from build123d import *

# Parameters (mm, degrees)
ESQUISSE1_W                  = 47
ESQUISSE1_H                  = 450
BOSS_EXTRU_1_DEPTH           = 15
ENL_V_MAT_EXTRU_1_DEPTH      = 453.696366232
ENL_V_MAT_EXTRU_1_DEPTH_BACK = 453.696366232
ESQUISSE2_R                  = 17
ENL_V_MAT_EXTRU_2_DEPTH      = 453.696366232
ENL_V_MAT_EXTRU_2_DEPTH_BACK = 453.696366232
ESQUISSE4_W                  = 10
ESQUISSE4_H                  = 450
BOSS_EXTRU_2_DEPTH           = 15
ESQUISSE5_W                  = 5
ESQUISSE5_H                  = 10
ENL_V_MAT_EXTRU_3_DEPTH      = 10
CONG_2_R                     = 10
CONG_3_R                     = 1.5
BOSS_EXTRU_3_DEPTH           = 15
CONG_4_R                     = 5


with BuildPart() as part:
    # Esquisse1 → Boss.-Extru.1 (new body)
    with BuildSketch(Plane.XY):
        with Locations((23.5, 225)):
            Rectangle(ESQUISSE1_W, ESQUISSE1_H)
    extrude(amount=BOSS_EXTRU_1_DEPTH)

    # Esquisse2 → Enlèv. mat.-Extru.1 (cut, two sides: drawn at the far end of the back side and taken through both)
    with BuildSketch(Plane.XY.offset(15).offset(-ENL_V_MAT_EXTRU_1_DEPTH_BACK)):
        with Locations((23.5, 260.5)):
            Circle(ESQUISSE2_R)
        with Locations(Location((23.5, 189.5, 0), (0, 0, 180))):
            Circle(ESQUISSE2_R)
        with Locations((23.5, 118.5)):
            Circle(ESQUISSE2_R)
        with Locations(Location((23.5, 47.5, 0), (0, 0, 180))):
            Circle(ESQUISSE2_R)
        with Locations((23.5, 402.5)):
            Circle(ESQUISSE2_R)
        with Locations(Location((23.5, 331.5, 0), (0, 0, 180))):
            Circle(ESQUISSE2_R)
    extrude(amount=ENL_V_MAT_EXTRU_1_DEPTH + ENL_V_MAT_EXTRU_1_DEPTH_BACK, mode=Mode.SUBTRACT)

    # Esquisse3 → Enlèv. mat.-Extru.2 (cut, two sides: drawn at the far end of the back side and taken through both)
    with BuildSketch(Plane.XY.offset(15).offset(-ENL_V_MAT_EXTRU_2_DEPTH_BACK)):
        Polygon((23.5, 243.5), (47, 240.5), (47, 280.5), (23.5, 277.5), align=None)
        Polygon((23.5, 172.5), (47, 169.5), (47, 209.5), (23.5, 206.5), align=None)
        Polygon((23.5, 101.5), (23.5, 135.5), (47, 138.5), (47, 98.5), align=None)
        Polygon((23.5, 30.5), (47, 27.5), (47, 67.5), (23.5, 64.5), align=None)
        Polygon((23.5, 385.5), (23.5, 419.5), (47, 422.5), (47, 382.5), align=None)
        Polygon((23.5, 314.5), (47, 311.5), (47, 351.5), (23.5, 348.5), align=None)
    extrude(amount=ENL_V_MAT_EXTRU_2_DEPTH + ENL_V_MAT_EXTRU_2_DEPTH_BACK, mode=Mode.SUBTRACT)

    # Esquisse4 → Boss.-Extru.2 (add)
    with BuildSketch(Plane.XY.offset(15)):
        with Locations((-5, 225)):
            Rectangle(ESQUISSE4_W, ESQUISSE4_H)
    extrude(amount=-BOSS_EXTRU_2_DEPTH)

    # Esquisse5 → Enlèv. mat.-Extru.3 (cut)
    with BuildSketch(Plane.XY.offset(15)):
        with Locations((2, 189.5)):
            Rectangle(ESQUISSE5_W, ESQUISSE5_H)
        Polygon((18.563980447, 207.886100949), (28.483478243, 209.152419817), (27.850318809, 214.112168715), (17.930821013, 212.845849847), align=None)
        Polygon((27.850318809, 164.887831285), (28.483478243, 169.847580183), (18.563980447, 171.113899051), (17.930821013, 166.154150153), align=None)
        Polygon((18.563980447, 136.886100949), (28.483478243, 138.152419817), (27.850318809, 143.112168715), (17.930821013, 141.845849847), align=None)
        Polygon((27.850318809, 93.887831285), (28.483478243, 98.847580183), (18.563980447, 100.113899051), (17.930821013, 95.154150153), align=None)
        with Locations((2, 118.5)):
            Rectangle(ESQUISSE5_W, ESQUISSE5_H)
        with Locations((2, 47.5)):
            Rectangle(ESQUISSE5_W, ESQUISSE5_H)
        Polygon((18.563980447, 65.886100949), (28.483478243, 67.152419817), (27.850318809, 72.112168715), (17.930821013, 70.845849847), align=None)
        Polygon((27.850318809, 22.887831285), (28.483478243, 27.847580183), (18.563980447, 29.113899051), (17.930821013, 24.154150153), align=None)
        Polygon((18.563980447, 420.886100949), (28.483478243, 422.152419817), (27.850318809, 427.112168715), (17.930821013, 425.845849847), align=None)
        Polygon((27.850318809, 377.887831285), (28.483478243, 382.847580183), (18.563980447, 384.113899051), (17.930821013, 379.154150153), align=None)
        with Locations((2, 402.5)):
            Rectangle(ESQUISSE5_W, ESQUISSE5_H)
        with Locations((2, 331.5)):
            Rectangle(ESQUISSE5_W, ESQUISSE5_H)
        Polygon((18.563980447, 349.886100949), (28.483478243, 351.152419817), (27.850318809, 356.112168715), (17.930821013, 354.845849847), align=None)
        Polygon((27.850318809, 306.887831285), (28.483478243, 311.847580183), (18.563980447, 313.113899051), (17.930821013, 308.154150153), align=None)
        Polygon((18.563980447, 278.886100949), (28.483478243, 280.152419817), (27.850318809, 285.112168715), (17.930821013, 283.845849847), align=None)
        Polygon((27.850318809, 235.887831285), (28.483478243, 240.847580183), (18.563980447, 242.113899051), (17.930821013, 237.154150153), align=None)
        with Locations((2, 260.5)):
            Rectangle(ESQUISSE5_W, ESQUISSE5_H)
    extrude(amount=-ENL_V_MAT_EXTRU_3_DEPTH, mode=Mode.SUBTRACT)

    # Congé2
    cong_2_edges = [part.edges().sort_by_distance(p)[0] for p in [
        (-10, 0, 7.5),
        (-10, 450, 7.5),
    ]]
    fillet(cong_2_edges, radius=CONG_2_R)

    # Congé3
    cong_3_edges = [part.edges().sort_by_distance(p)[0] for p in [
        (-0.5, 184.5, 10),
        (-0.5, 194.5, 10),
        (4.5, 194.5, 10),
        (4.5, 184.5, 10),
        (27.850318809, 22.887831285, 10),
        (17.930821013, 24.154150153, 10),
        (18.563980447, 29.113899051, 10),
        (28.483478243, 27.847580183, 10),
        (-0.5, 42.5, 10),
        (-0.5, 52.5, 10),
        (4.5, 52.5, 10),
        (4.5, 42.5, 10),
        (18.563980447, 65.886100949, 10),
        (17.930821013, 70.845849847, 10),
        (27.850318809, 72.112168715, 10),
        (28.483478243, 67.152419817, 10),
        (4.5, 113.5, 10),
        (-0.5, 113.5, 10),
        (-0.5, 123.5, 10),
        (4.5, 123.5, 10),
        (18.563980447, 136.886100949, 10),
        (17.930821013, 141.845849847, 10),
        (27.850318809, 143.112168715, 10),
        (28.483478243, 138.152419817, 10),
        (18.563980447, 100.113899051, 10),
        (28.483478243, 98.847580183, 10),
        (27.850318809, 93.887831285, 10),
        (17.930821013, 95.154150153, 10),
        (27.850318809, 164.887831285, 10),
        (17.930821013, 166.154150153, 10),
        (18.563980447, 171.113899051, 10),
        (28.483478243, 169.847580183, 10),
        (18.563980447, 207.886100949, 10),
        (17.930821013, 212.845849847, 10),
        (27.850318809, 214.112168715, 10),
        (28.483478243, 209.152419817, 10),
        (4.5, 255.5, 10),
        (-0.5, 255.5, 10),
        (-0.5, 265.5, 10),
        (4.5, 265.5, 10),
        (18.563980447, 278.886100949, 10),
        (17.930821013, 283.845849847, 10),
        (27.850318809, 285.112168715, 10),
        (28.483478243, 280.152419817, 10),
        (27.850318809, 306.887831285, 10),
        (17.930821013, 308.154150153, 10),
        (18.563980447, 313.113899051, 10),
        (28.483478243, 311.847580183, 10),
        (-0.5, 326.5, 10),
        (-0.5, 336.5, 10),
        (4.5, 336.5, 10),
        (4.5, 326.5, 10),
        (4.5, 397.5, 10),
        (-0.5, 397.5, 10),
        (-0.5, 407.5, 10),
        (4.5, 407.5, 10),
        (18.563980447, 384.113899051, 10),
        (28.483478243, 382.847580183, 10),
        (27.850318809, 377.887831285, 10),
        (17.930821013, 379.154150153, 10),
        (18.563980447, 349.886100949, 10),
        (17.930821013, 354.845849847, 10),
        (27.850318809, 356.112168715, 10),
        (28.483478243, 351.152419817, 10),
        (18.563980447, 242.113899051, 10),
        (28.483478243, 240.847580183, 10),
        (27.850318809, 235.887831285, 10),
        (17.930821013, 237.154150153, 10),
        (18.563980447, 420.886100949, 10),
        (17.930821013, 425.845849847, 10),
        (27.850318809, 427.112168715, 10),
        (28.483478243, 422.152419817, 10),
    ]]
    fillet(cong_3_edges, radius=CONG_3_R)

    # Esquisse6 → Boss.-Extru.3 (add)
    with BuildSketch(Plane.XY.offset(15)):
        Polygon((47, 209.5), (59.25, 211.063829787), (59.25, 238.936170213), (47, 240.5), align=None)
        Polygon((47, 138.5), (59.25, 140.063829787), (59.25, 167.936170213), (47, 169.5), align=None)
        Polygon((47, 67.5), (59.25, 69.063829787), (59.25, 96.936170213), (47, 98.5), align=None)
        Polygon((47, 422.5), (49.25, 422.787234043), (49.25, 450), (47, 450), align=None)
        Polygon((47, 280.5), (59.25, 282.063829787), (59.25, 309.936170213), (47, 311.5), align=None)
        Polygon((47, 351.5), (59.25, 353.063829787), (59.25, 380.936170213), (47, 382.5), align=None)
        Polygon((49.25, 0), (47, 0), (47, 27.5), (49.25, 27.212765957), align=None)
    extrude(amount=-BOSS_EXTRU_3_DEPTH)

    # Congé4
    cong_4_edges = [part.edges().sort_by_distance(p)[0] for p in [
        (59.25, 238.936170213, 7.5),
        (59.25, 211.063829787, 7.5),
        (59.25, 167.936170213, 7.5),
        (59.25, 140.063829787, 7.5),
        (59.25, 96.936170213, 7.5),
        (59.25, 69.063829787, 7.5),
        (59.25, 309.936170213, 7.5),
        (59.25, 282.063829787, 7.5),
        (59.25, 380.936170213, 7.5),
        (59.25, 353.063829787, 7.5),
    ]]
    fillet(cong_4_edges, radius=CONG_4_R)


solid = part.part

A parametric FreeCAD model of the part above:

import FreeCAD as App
import Part
import Sketcher

V = App.Vector
Q = App.Units.Quantity


def edges_at(feature, points):
    """Names of the edges that pass closest to the given points."""
    edges = feature.Shape.Edges
    near = lambda p: min(range(len(edges)), key=lambda i: edges[i].distToShape(Part.Vertex(*p))[0])
    return sorted({f"Edge{near(p) + 1}" for p in points})

doc = App.newDocument("Part")
body = doc.addObject("PartDesign::Body", "Body")

# Sketch on XY plane
sketch1 = body.newObject("Sketcher::SketchObject", "Sketch")
sketch1.AttachmentSupport = (doc.getObject("XY_Plane"), [""])
sketch1.MapMode = "FlatFace"
sketch1.addGeometry(Part.LineSegment(V(0, 450, 0), V(0, 0, 0)), False)
sketch1.addGeometry(Part.LineSegment(V(0, 0, 0), V(47, 0, 0)), False)
sketch1.addGeometry(Part.LineSegment(V(47, 0, 0), V(47, 450, 0)), False)
sketch1.addGeometry(Part.LineSegment(V(47, 450, 0), V(0, 450, 0)), False)
sketch1.addConstraint(Sketcher.Constraint("Coincident", 0, 2, 1, 1))
sketch1.addConstraint(Sketcher.Constraint("Coincident", 1, 2, 2, 1))
sketch1.addConstraint(Sketcher.Constraint("Coincident", 2, 2, 3, 1))
sketch1.addConstraint(Sketcher.Constraint("Coincident", 3, 2, 0, 1))
sketch1.addConstraint(Sketcher.Constraint("Vertical", 0))
sketch1.addConstraint(Sketcher.Constraint("Horizontal", 1))
sketch1.addConstraint(Sketcher.Constraint("Vertical", 2))
sketch1.addConstraint(Sketcher.Constraint("Horizontal", 3))
sketch1.addConstraint(Sketcher.Constraint("Coincident", 0, 2, -1, 1))
sketch1.addConstraint(Sketcher.Constraint("DistanceX", 1, 1, 1, 2, Q("47 mm")))
sketch1.addConstraint(Sketcher.Constraint("DistanceY", 0, 2, 0, 1, Q("450 mm")))
pad1 = body.newObject("PartDesign::Pad", "Pad")
pad1.Profile = sketch1
pad1.Length = 15

# Sketch on XY plane
sketch2 = body.newObject("Sketcher::SketchObject", "Sketch001")
sketch2.AttachmentSupport = (doc.getObject("XY_Plane"), [""])
sketch2.MapMode = "FlatFace"
sketch2.AttachmentOffset = App.Placement(V(0, 0, 15), App.Rotation())
sketch2.addGeometry(Part.Circle(V(24, 260, 0), V(0, 0, 1), 17), False)
sketch2.addGeometry(Part.Circle(V(24, 190, 0), V(0, 0, 1), 17), False)
sketch2.addGeometry(Part.Circle(V(24, 118, 0), V(0, 0, 1), 17), False)
sketch2.addGeometry(Part.Circle(V(24, 48, 0), V(0, 0, 1), 17), False)
sketch2.addGeometry(Part.Circle(V(24, 402, 0), V(0, 0, 1), 17), False)
sketch2.addGeometry(Part.Circle(V(24, 332, 0), V(0, 0, 1), 17), False)
sketch2.addConstraint(Sketcher.Constraint("Equal", 0, 1))
sketch2.addConstraint(Sketcher.Constraint("Equal", 1, 2))
sketch2.addConstraint(Sketcher.Constraint("Equal", 2, 3))
sketch2.addConstraint(Sketcher.Constraint("Equal", 3, 4))
sketch2.addConstraint(Sketcher.Constraint("Equal", 4, 5))
sketch2.addConstraint(Sketcher.Constraint("Vertical", 0, 3, 1, 3))
sketch2.addConstraint(Sketcher.Constraint("Vertical", 1, 3, 2, 3))
sketch2.addConstraint(Sketcher.Constraint("Vertical", 2, 3, 3, 3))
sketch2.addConstraint(Sketcher.Constraint("Vertical", 3, 3, 4, 3))
sketch2.addConstraint(Sketcher.Constraint("Vertical", 4, 3, 5, 3))
sketch2.addConstraint(Sketcher.Constraint("Diameter", 0, Q("34 mm")))
sketch2.addConstraint(Sketcher.Constraint("DistanceY", 1, 3, 0, 3, Q("71 mm")))
sketch2.addConstraint(Sketcher.Constraint("DistanceY", 2, 3, 1, 3, Q("71 mm")))
sketch2.addConstraint(Sketcher.Constraint("DistanceY", 3, 3, 2, 3, Q("71 mm")))
sketch2.addConstraint(Sketcher.Constraint("DistanceY", 0, 3, 4, 3, Q("142 mm")))
sketch2.addConstraint(Sketcher.Constraint("DistanceY", 0, 3, 5, 3, Q("71 mm")))
sketch2.addConstraint(Sketcher.Constraint("DistanceX", -1, 1, 0, 3, Q("23.5 mm")))
sketch2.addConstraint(Sketcher.Constraint("DistanceY", -1, 1, 0, 3, Q("260.5 mm")))
pocket1 = body.newObject("PartDesign::Pocket", "Pocket")
pocket1.Profile = sketch2
pocket1.Type = "ThroughAll"
pocket1.Midplane = True

# Sketch on XY plane
sketch3 = body.newObject("Sketcher::SketchObject", "Sketch002")
sketch3.AttachmentSupport = (doc.getObject("XY_Plane"), [""])
sketch3.MapMode = "FlatFace"
sketch3.AttachmentOffset = App.Placement(V(0, 0, 15), App.Rotation())
sketch3.addGeometry(Part.LineSegment(V(24, 244, 0), V(47, 240, 0)), False)
sketch3.addGeometry(Part.LineSegment(V(47, 240, 0), V(47, 280, 0)), False)
sketch3.addGeometry(Part.LineSegment(V(47, 280, 0), V(24, 278, 0)), False)
sketch3.addGeometry(Part.LineSegment(V(24, 278, 0), V(24, 244, 0)), False)
sketch3.addGeometry(Part.LineSegment(V(24, 172, 0), V(47, 170, 0)), False)
sketch3.addGeometry(Part.LineSegment(V(47, 170, 0), V(47, 210, 0)), False)
sketch3.addGeometry(Part.LineSegment(V(47, 210, 0), V(24, 206, 0)), False)
sketch3.addGeometry(Part.LineSegment(V(24, 206, 0), V(24, 172, 0)), False)
sketch3.addGeometry(Part.LineSegment(V(24, 136, 0), V(24, 102, 0)), False)
sketch3.addGeometry(Part.LineSegment(V(24, 102, 0), V(47, 98, 0)), False)
sketch3.addGeometry(Part.LineSegment(V(47, 98, 0), V(47, 138, 0)), False)
sketch3.addGeometry(Part.LineSegment(V(47, 138, 0), V(24, 136, 0)), False)
sketch3.addGeometry(Part.LineSegment(V(24, 30, 0), V(47, 28, 0)), False)
sketch3.addGeometry(Part.LineSegment(V(47, 28, 0), V(47, 68, 0)), False)
sketch3.addGeometry(Part.LineSegment(V(47, 68, 0), V(24, 64, 0)), False)
sketch3.addGeometry(Part.LineSegment(V(24, 64, 0), V(24, 30, 0)), False)
sketch3.addGeometry(Part.LineSegment(V(24, 420, 0), V(24, 386, 0)), False)
sketch3.addGeometry(Part.LineSegment(V(24, 386, 0), V(47, 382, 0)), False)
sketch3.addGeometry(Part.LineSegment(V(47, 382, 0), V(47, 422, 0)), False)
sketch3.addGeometry(Part.LineSegment(V(47, 422, 0), V(24, 420, 0)), False)
sketch3.addGeometry(Part.LineSegment(V(24, 314, 0), V(47, 312, 0)), False)
sketch3.addGeometry(Part.LineSegment(V(47, 312, 0), V(47, 352, 0)), False)
sketch3.addGeometry(Part.LineSegment(V(47, 352, 0), V(24, 348, 0)), False)
sketch3.addGeometry(Part.LineSegment(V(24, 348, 0), V(24, 314, 0)), False)
sketch3.addConstraint(Sketcher.Constraint("Coincident", 0, 2, 1, 1))
sketch3.addConstraint(Sketcher.Constraint("Coincident", 1, 2, 2, 1))
sketch3.addConstraint(Sketcher.Constraint("Coincident", 2, 2, 3, 1))
sketch3.addConstraint(Sketcher.Constraint("Coincident", 3, 2, 0, 1))
sketch3.addConstraint(Sketcher.Constraint("Coincident", 4, 2, 5, 1))
sketch3.addConstraint(Sketcher.Constraint("Coincident", 5, 2, 6, 1))
sketch3.addConstraint(Sketcher.Constraint("Coincident", 6, 2, 7, 1))
sketch3.addConstraint(Sketcher.Constraint("Coincident", 7, 2, 4, 1))
sketch3.addConstraint(Sketcher.Constraint("Coincident", 8, 2, 9, 1))
sketch3.addConstraint(Sketcher.Constraint("Coincident", 9, 2, 10, 1))
sketch3.addConstraint(Sketcher.Constraint("Coincident", 10, 2, 11, 1))
sketch3.addConstraint(Sketcher.Constraint("Coincident", 11, 2, 8, 1))
sketch3.addConstraint(Sketcher.Constraint("Coincident", 12, 2, 13, 1))
sketch3.addConstraint(Sketcher.Constraint("Coincident", 13, 2, 14, 1))
sketch3.addConstraint(Sketcher.Constraint("Coincident", 14, 2, 15, 1))
sketch3.addConstraint(Sketcher.Constraint("Coincident", 15, 2, 12, 1))
sketch3.addConstraint(Sketcher.Constraint("Coincident", 16, 2, 17, 1))
sketch3.addConstraint(Sketcher.Constraint("Coincident", 17, 2, 18, 1))
sketch3.addConstraint(Sketcher.Constraint("Coincident", 18, 2, 19, 1))
sketch3.addConstraint(Sketcher.Constraint("Coincident", 19, 2, 16, 1))
sketch3.addConstraint(Sketcher.Constraint("Coincident", 20, 2, 21, 1))
sketch3.addConstraint(Sketcher.Constraint("Coincident", 21, 2, 22, 1))
sketch3.addConstraint(Sketcher.Constraint("Coincident", 22, 2, 23, 1))
sketch3.addConstraint(Sketcher.Constraint("Coincident", 23, 2, 20, 1))
sketch3.addConstraint(Sketcher.Constraint("Vertical", 1))
sketch3.addConstraint(Sketcher.Constraint("Vertical", 3))
sketch3.addConstraint(Sketcher.Constraint("Vertical", 5))
sketch3.addConstraint(Sketcher.Constraint("Vertical", 7))
sketch3.addConstraint(Sketcher.Constraint("Vertical", 8))
sketch3.addConstraint(Sketcher.Constraint("Vertical", 10))
sketch3.addConstraint(Sketcher.Constraint("Vertical", 13))
sketch3.addConstraint(Sketcher.Constraint("Vertical", 15))
sketch3.addConstraint(Sketcher.Constraint("Vertical", 16))
sketch3.addConstraint(Sketcher.Constraint("Vertical", 18))
sketch3.addConstraint(Sketcher.Constraint("Vertical", 21))
sketch3.addConstraint(Sketcher.Constraint("Vertical", 23))
sketch3.addConstraint(Sketcher.Constraint("Parallel", 0, 4))
sketch3.addConstraint(Sketcher.Constraint("Parallel", 2, 6))
sketch3.addConstraint(Sketcher.Constraint("Parallel", 4, 9))
sketch3.addConstraint(Sketcher.Constraint("Parallel", 6, 11))
sketch3.addConstraint(Sketcher.Constraint("Parallel", 9, 12))
sketch3.addConstraint(Sketcher.Constraint("Parallel", 11, 14))
sketch3.addConstraint(Sketcher.Constraint("Parallel", 12, 17))
sketch3.addConstraint(Sketcher.Constraint("Parallel", 14, 19))
sketch3.addConstraint(Sketcher.Constraint("Parallel", 17, 20))
sketch3.addConstraint(Sketcher.Constraint("Parallel", 19, 22))
sketch3.addConstraint(Sketcher.Constraint("Vertical", 1, 2, 4, 2))
sketch3.addConstraint(Sketcher.Constraint("Vertical", 3, 2, 6, 2))
sketch3.addConstraint(Sketcher.Constraint("Vertical", 7, 2, 8, 2))
sketch3.addConstraint(Sketcher.Constraint("Vertical", 5, 2, 9, 2))
sketch3.addConstraint(Sketcher.Constraint("Vertical", 10, 2, 12, 2))
sketch3.addConstraint(Sketcher.Constraint("Vertical", 11, 2, 14, 2))
sketch3.addConstraint(Sketcher.Constraint("Vertical", 15, 2, 16, 2))
sketch3.addConstraint(Sketcher.Constraint("Vertical", 13, 2, 17, 2))
sketch3.addConstraint(Sketcher.Constraint("Vertical", 18, 2, 20, 2))
sketch3.addConstraint(Sketcher.Constraint("Vertical", 19, 2, 22, 2))
sketch3.addConstraint(Sketcher.Constraint("Equal", 1, 5))
sketch3.addConstraint(Sketcher.Constraint("Equal", 7, 8))
sketch3.addConstraint(Sketcher.Constraint("Equal", 10, 13))
sketch3.addConstraint(Sketcher.Constraint("Equal", 15, 16))
sketch3.addConstraint(Sketcher.Constraint("Equal", 18, 21))
sketch3.addConstraint(Sketcher.Constraint("Equal", 0, 2))
sketch3.addConstraint(Sketcher.Constraint("DistanceY", 1, 1, 1, 2, Q("40 mm")))
sketch3.addConstraint(Sketcher.Constraint("DistanceY", 3, 2, 3, 1, Q("34 mm")))
sketch3.addConstraint(Sketcher.Constraint("DistanceX", -1, 1, 0, 2, Q("47 mm")))
sketch3.addConstraint(Sketcher.Constraint("DistanceY", 4, 2, 0, 2, Q("71 mm")))
sketch3.addConstraint(Sketcher.Constraint("DistanceY", 8, 2, 7, 2, Q("71 mm")))
sketch3.addConstraint(Sketcher.Constraint("DistanceY", 12, 2, 9, 2, Q("71 mm")))
sketch3.addConstraint(Sketcher.Constraint("DistanceY", 1, 2, 16, 2, Q("105 mm")))
sketch3.addConstraint(Sketcher.Constraint("DistanceY", 1, 2, 20, 2, Q("31 mm")))
sketch3.addConstraint(Sketcher.Constraint("DistanceY", -1, 1, 0, 2, Q("240.5 mm")))
sketch3.addConstraint(Sketcher.Constraint("DistanceX", -1, 1, 2, 2, Q("23.5 mm")))
pocket2 = body.newObject("PartDesign::Pocket", "Pocket001")
pocket2.Profile = sketch3
pocket2.Type = "ThroughAll"
pocket2.Midplane = True

# Sketch on XY plane
sketch4 = body.newObject("Sketcher::SketchObject", "Sketch003")
sketch4.AttachmentSupport = (doc.getObject("XY_Plane"), [""])
sketch4.MapMode = "FlatFace"
sketch4.AttachmentOffset = App.Placement(V(0, 0, 15), App.Rotation())
sketch4.addGeometry(Part.LineSegment(V(-10, 450, 0), V(-10, 0, 0)), False)
sketch4.addGeometry(Part.LineSegment(V(-10, 0, 0), V(0, 0, 0)), False)
sketch4.addGeometry(Part.LineSegment(V(0, 0, 0), V(0, 450, 0)), False)
sketch4.addGeometry(Part.LineSegment(V(0, 450, 0), V(-10, 450, 0)), False)
sketch4.addConstraint(Sketcher.Constraint("Coincident", 0, 2, 1, 1))
sketch4.addConstraint(Sketcher.Constraint("Coincident", 1, 2, 2, 1))
sketch4.addConstraint(Sketcher.Constraint("Coincident", 2, 2, 3, 1))
sketch4.addConstraint(Sketcher.Constraint("Coincident", 3, 2, 0, 1))
sketch4.addConstraint(Sketcher.Constraint("Vertical", 0))
sketch4.addConstraint(Sketcher.Constraint("Horizontal", 1))
sketch4.addConstraint(Sketcher.Constraint("Vertical", 2))
sketch4.addConstraint(Sketcher.Constraint("Horizontal", 3))
sketch4.addConstraint(Sketcher.Constraint("Coincident", 1, 2, -1, 1))
sketch4.addConstraint(Sketcher.Constraint("DistanceX", 1, 1, 1, 2, Q("10 mm")))
sketch4.addConstraint(Sketcher.Constraint("DistanceY", 0, 2, 0, 1, Q("450 mm")))
pad2 = body.newObject("PartDesign::Pad", "Pad001")
pad2.Profile = sketch4
pad2.Length = 15
pad2.Reversed = True

# Sketch on XY plane
sketch5 = body.newObject("Sketcher::SketchObject", "Sketch004")
sketch5.AttachmentSupport = (doc.getObject("XY_Plane"), [""])
sketch5.MapMode = "FlatFace"
sketch5.AttachmentOffset = App.Placement(V(0, 0, 15), App.Rotation())
sketch5.addGeometry(Part.LineSegment(V(0, 194, 0), V(0, 184, 0)), False)
sketch5.addGeometry(Part.LineSegment(V(0, 184, 0), V(4, 184, 0)), False)
sketch5.addGeometry(Part.LineSegment(V(4, 184, 0), V(4, 194, 0)), False)
sketch5.addGeometry(Part.LineSegment(V(4, 194, 0), V(0, 194, 0)), False)
sketch5.addGeometry(Part.LineSegment(V(19, 208, 0), V(28, 209, 0)), False)
sketch5.addGeometry(Part.LineSegment(V(28, 209, 0), V(28, 214, 0)), False)
sketch5.addGeometry(Part.LineSegment(V(28, 214, 0), V(18, 213, 0)), False)
sketch5.addGeometry(Part.LineSegment(V(18, 213, 0), V(19, 208, 0)), False)
sketch5.addGeometry(Part.LineSegment(V(28, 165, 0), V(28, 170, 0)), False)
sketch5.addGeometry(Part.LineSegment(V(28, 170, 0), V(19, 171, 0)), False)
sketch5.addGeometry(Part.LineSegment(V(19, 171, 0), V(18, 166, 0)), False)
sketch5.addGeometry(Part.LineSegment(V(18, 166, 0), V(28, 165, 0)), False)
sketch5.addGeometry(Part.LineSegment(V(19, 137, 0), V(28, 138, 0)), False)
sketch5.addGeometry(Part.LineSegment(V(28, 138, 0), V(28, 143, 0)), False)
sketch5.addGeometry(Part.LineSegment(V(28, 143, 0), V(18, 142, 0)), False)
sketch5.addGeometry(Part.LineSegment(V(18, 142, 0), V(19, 137, 0)), False)
sketch5.addGeometry(Part.LineSegment(V(28, 94, 0), V(28, 99, 0)), False)
sketch5.addGeometry(Part.LineSegment(V(28, 99, 0), V(19, 100, 0)), False)
sketch5.addGeometry(Part.LineSegment(V(19, 100, 0), V(18, 95, 0)), False)
sketch5.addGeometry(Part.LineSegment(V(18, 95, 0), V(28, 94, 0)), False)
sketch5.addGeometry(Part.LineSegment(V(0, 124, 0), V(0, 114, 0)), False)
sketch5.addGeometry(Part.LineSegment(V(0, 114, 0), V(4, 114, 0)), False)
sketch5.addGeometry(Part.LineSegment(V(4, 114, 0), V(4, 124, 0)), False)
sketch5.addGeometry(Part.LineSegment(V(4, 124, 0), V(0, 124, 0)), False)
sketch5.addGeometry(Part.LineSegment(V(0, 52, 0), V(0, 42, 0)), False)
sketch5.addGeometry(Part.LineSegment(V(0, 42, 0), V(4, 42, 0)), False)
sketch5.addGeometry(Part.LineSegment(V(4, 42, 0), V(4, 52, 0)), False)
sketch5.addGeometry(Part.LineSegment(V(4, 52, 0), V(0, 52, 0)), False)
sketch5.addGeometry(Part.LineSegment(V(19, 66, 0), V(28, 67, 0)), False)
sketch5.addGeometry(Part.LineSegment(V(28, 67, 0), V(28, 72, 0)), False)
sketch5.addGeometry(Part.LineSegment(V(28, 72, 0), V(18, 71, 0)), False)
sketch5.addGeometry(Part.LineSegment(V(18, 71, 0), V(19, 66, 0)), False)
sketch5.addGeometry(Part.LineSegment(V(28, 23, 0), V(28, 28, 0)), False)
sketch5.addGeometry(Part.LineSegment(V(28, 28, 0), V(19, 29, 0)), False)
sketch5.addGeometry(Part.LineSegment(V(19, 29, 0), V(18, 24, 0)), False)
sketch5.addGeometry(Part.LineSegment(V(18, 24, 0), V(28, 23, 0)), False)
sketch5.addGeometry(Part.LineSegment(V(19, 421, 0), V(28, 422, 0)), False)
sketch5.addGeometry(Part.LineSegment(V(28, 422, 0), V(28, 427, 0)), False)
sketch5.addGeometry(Part.LineSegment(V(28, 427, 0), V(18, 426, 0)), False)
sketch5.addGeometry(Part.LineSegment(V(18, 426, 0), V(19, 421, 0)), False)
sketch5.addGeometry(Part.LineSegment(V(28, 378, 0), V(28, 383, 0)), False)
sketch5.addGeometry(Part.LineSegment(V(28, 383, 0), V(19, 384, 0)), False)
sketch5.addGeometry(Part.LineSegment(V(19, 384, 0), V(18, 379, 0)), False)
sketch5.addGeometry(Part.LineSegment(V(18, 379, 0), V(28, 378, 0)), False)
sketch5.addGeometry(Part.LineSegment(V(0, 408, 0), V(0, 398, 0)), False)
sketch5.addGeometry(Part.LineSegment(V(0, 398, 0), V(4, 398, 0)), False)
sketch5.addGeometry(Part.LineSegment(V(4, 398, 0), V(4, 408, 0)), False)
sketch5.addGeometry(Part.LineSegment(V(4, 408, 0), V(0, 408, 0)), False)
sketch5.addGeometry(Part.LineSegment(V(0, 336, 0), V(0, 326, 0)), False)
sketch5.addGeometry(Part.LineSegment(V(0, 326, 0), V(4, 326, 0)), False)
sketch5.addGeometry(Part.LineSegment(V(4, 326, 0), V(4, 336, 0)), False)
sketch5.addGeometry(Part.LineSegment(V(4, 336, 0), V(0, 336, 0)), False)
sketch5.addGeometry(Part.LineSegment(V(19, 350, 0), V(28, 351, 0)), False)
sketch5.addGeometry(Part.LineSegment(V(28, 351, 0), V(28, 356, 0)), False)
sketch5.addGeometry(Part.LineSegment(V(28, 356, 0), V(18, 355, 0)), False)
sketch5.addGeometry(Part.LineSegment(V(18, 355, 0), V(19, 350, 0)), False)
sketch5.addGeometry(Part.LineSegment(V(28, 307, 0), V(28, 312, 0)), False)
sketch5.addGeometry(Part.LineSegment(V(28, 312, 0), V(19, 313, 0)), False)
sketch5.addGeometry(Part.LineSegment(V(19, 313, 0), V(18, 308, 0)), False)
sketch5.addGeometry(Part.LineSegment(V(18, 308, 0), V(28, 307, 0)), False)
sketch5.addGeometry(Part.LineSegment(V(19, 279, 0), V(28, 280, 0)), False)
sketch5.addGeometry(Part.LineSegment(V(28, 280, 0), V(28, 285, 0)), False)
sketch5.addGeometry(Part.LineSegment(V(28, 285, 0), V(18, 284, 0)), False)
sketch5.addGeometry(Part.LineSegment(V(18, 284, 0), V(19, 279, 0)), False)
sketch5.addGeometry(Part.LineSegment(V(28, 236, 0), V(28, 241, 0)), False)
sketch5.addGeometry(Part.LineSegment(V(28, 241, 0), V(19, 242, 0)), False)
sketch5.addGeometry(Part.LineSegment(V(19, 242, 0), V(18, 237, 0)), False)
sketch5.addGeometry(Part.LineSegment(V(18, 237, 0), V(28, 236, 0)), False)
sketch5.addGeometry(Part.LineSegment(V(0, 266, 0), V(0, 256, 0)), False)
sketch5.addGeometry(Part.LineSegment(V(0, 256, 0), V(4, 256, 0)), False)
sketch5.addGeometry(Part.LineSegment(V(4, 256, 0), V(4, 266, 0)), False)
sketch5.addGeometry(Part.LineSegment(V(4, 266, 0), V(0, 266, 0)), False)
sketch5.addConstraint(Sketcher.Constraint("Coincident", 0, 2, 1, 1))
sketch5.addConstraint(Sketcher.Constraint("Coincident", 1, 2, 2, 1))
sketch5.addConstraint(Sketcher.Constraint("Coincident", 2, 2, 3, 1))
sketch5.addConstraint(Sketcher.Constraint("Coincident", 3, 2, 0, 1))
sketch5.addConstraint(Sketcher.Constraint("Coincident", 4, 2, 5, 1))
sketch5.addConstraint(Sketcher.Constraint("Coincident", 5, 2, 6, 1))
sketch5.addConstraint(Sketcher.Constraint("Coincident", 6, 2, 7, 1))
sketch5.addConstraint(Sketcher.Constraint("Coincident", 7, 2, 4, 1))
sketch5.addConstraint(Sketcher.Constraint("Coincident", 8, 2, 9, 1))
sketch5.addConstraint(Sketcher.Constraint("Coincident", 9, 2, 10, 1))
sketch5.addConstraint(Sketcher.Constraint("Coincident", 10, 2, 11, 1))
sketch5.addConstraint(Sketcher.Constraint("Coincident", 11, 2, 8, 1))
sketch5.addConstraint(Sketcher.Constraint("Coincident", 12, 2, 13, 1))
sketch5.addConstraint(Sketcher.Constraint("Coincident", 13, 2, 14, 1))
sketch5.addConstraint(Sketcher.Constraint("Coincident", 14, 2, 15, 1))
sketch5.addConstraint(Sketcher.Constraint("Coincident", 15, 2, 12, 1))
sketch5.addConstraint(Sketcher.Constraint("Coincident", 16, 2, 17, 1))
sketch5.addConstraint(Sketcher.Constraint("Coincident", 17, 2, 18, 1))
sketch5.addConstraint(Sketcher.Constraint("Coincident", 18, 2, 19, 1))
sketch5.addConstraint(Sketcher.Constraint("Coincident", 19, 2, 16, 1))
sketch5.addConstraint(Sketcher.Constraint("Coincident", 20, 2, 21, 1))
sketch5.addConstraint(Sketcher.Constraint("Coincident", 21, 2, 22, 1))
sketch5.addConstraint(Sketcher.Constraint("Coincident", 22, 2, 23, 1))
sketch5.addConstraint(Sketcher.Constraint("Coincident", 23, 2, 20, 1))
sketch5.addConstraint(Sketcher.Constraint("Coincident", 24, 2, 25, 1))
sketch5.addConstraint(Sketcher.Constraint("Coincident", 25, 2, 26, 1))
sketch5.addConstraint(Sketcher.Constraint("Coincident", 26, 2, 27, 1))
sketch5.addConstraint(Sketcher.Constraint("Coincident", 27, 2, 24, 1))
sketch5.addConstraint(Sketcher.Constraint("Coincident", 28, 2, 29, 1))
sketch5.addConstraint(Sketcher.Constraint("Coincident", 29, 2, 30, 1))
sketch5.addConstraint(Sketcher.Constraint("Coincident", 30, 2, 31, 1))
sketch5.addConstraint(Sketcher.Constraint("Coincident", 31, 2, 28, 1))
sketch5.addConstraint(Sketcher.Constraint("Coincident", 32, 2, 33, 1))
sketch5.addConstraint(Sketcher.Constraint("Coincident", 33, 2, 34, 1))
sketch5.addConstraint(Sketcher.Constraint("Coincident", 34, 2, 35, 1))
sketch5.addConstraint(Sketcher.Constraint("Coincident", 35, 2, 32, 1))
sketch5.addConstraint(Sketcher.Constraint("Coincident", 36, 2, 37, 1))
sketch5.addConstraint(Sketcher.Constraint("Coincident", 37, 2, 38, 1))
sketch5.addConstraint(Sketcher.Constraint("Coincident", 38, 2, 39, 1))
sketch5.addConstraint(Sketcher.Constraint("Coincident", 39, 2, 36, 1))
sketch5.addConstraint(Sketcher.Constraint("Coincident", 40, 2, 41, 1))
sketch5.addConstraint(Sketcher.Constraint("Coincident", 41, 2, 42, 1))
sketch5.addConstraint(Sketcher.Constraint("Coincident", 42, 2, 43, 1))
sketch5.addConstraint(Sketcher.Constraint("Coincident", 43, 2, 40, 1))
sketch5.addConstraint(Sketcher.Constraint("Coincident", 44, 2, 45, 1))
sketch5.addConstraint(Sketcher.Constraint("Coincident", 45, 2, 46, 1))
sketch5.addConstraint(Sketcher.Constraint("Coincident", 46, 2, 47, 1))
sketch5.addConstraint(Sketcher.Constraint("Coincident", 47, 2, 44, 1))
sketch5.addConstraint(Sketcher.Constraint("Coincident", 48, 2, 49, 1))
sketch5.addConstraint(Sketcher.Constraint("Coincident", 49, 2, 50, 1))
sketch5.addConstraint(Sketcher.Constraint("Coincident", 50, 2, 51, 1))
sketch5.addConstraint(Sketcher.Constraint("Coincident", 51, 2, 48, 1))
sketch5.addConstraint(Sketcher.Constraint("Coincident", 52, 2, 53, 1))
sketch5.addConstraint(Sketcher.Constraint("Coincident", 53, 2, 54, 1))
sketch5.addConstraint(Sketcher.Constraint("Coincident", 54, 2, 55, 1))
sketch5.addConstraint(Sketcher.Constraint("Coincident", 55, 2, 52, 1))
sketch5.addConstraint(Sketcher.Constraint("Coincident", 56, 2, 57, 1))
sketch5.addConstraint(Sketcher.Constraint("Coincident", 57, 2, 58, 1))
sketch5.addConstraint(Sketcher.Constraint("Coincident", 58, 2, 59, 1))
sketch5.addConstraint(Sketcher.Constraint("Coincident", 59, 2, 56, 1))
sketch5.addConstraint(Sketcher.Constraint("Coincident", 60, 2, 61, 1))
sketch5.addConstraint(Sketcher.Constraint("Coincident", 61, 2, 62, 1))
sketch5.addConstraint(Sketcher.Constraint("Coincident", 62, 2, 63, 1))
sketch5.addConstraint(Sketcher.Constraint("Coincident", 63, 2, 60, 1))
sketch5.addConstraint(Sketcher.Constraint("Coincident", 64, 2, 65, 1))
sketch5.addConstraint(Sketcher.Constraint("Coincident", 65, 2, 66, 1))
sketch5.addConstraint(Sketcher.Constraint("Coincident", 66, 2, 67, 1))
sketch5.addConstraint(Sketcher.Constraint("Coincident", 67, 2, 64, 1))
sketch5.addConstraint(Sketcher.Constraint("Coincident", 68, 2, 69, 1))
sketch5.addConstraint(Sketcher.Constraint("Coincident", 69, 2, 70, 1))
sketch5.addConstraint(Sketcher.Constraint("Coincident", 70, 2, 71, 1))
sketch5.addConstraint(Sketcher.Constraint("Coincident", 71, 2, 68, 1))
sketch5.addConstraint(Sketcher.Constraint("Vertical", 0))
sketch5.addConstraint(Sketcher.Constraint("Horizontal", 1))
sketch5.addConstraint(Sketcher.Constraint("Vertical", 2))
sketch5.addConstraint(Sketcher.Constraint("Horizontal", 3))
sketch5.addConstraint(Sketcher.Constraint("Vertical", 20))
sketch5.addConstraint(Sketcher.Constraint("Horizontal", 21))
sketch5.addConstraint(Sketcher.Constraint("Vertical", 22))
sketch5.addConstraint(Sketcher.Constraint("Horizontal", 23))
sketch5.addConstraint(Sketcher.Constraint("Vertical", 24))
sketch5.addConstraint(Sketcher.Constraint("Horizontal", 25))
sketch5.addConstraint(Sketcher.Constraint("Vertical", 26))
sketch5.addConstraint(Sketcher.Constraint("Horizontal", 27))
sketch5.addConstraint(Sketcher.Constraint("Vertical", 44))
sketch5.addConstraint(Sketcher.Constraint("Horizontal", 45))
sketch5.addConstraint(Sketcher.Constraint("Vertical", 46))
sketch5.addConstraint(Sketcher.Constraint("Horizontal", 47))
sketch5.addConstraint(Sketcher.Constraint("Vertical", 48))
sketch5.addConstraint(Sketcher.Constraint("Horizontal", 49))
sketch5.addConstraint(Sketcher.Constraint("Vertical", 50))
sketch5.addConstraint(Sketcher.Constraint("Horizontal", 51))
sketch5.addConstraint(Sketcher.Constraint("Vertical", 68))
sketch5.addConstraint(Sketcher.Constraint("Horizontal", 69))
sketch5.addConstraint(Sketcher.Constraint("Vertical", 70))
sketch5.addConstraint(Sketcher.Constraint("Horizontal", 71))
sketch5.addConstraint(Sketcher.Constraint("Perpendicular", 4, 5))
sketch5.addConstraint(Sketcher.Constraint("Perpendicular", 5, 6))
sketch5.addConstraint(Sketcher.Constraint("Perpendicular", 6, 7))
sketch5.addConstraint(Sketcher.Constraint("Perpendicular", 8, 9))
sketch5.addConstraint(Sketcher.Constraint("Perpendicular", 9, 10))
sketch5.addConstraint(Sketcher.Constraint("Perpendicular", 10, 11))
sketch5.addConstraint(Sketcher.Constraint("Perpendicular", 7, 12))
sketch5.addConstraint(Sketcher.Constraint("Perpendicular", 12, 13))
sketch5.addConstraint(Sketcher.Constraint("Perpendicular", 13, 14))
sketch5.addConstraint(Sketcher.Constraint("Perpendicular", 14, 15))
sketch5.addConstraint(Sketcher.Constraint("Perpendicular", 11, 16))
sketch5.addConstraint(Sketcher.Constraint("Perpendicular", 16, 17))
sketch5.addConstraint(Sketcher.Constraint("Perpendicular", 17, 18))
sketch5.addConstraint(Sketcher.Constraint("Perpendicular", 18, 19))
sketch5.addConstraint(Sketcher.Constraint("Perpendicular", 15, 28))
sketch5.addConstraint(Sketcher.Constraint("Perpendicular", 28, 29))
sketch5.addConstraint(Sketcher.Constraint("Perpendicular", 29, 30))
sketch5.addConstraint(Sketcher.Constraint("Perpendicular", 30, 31))
sketch5.addConstraint(Sketcher.Constraint("Perpendicular", 19, 32))
sketch5.addConstraint(Sketcher.Constraint("Perpendicular", 32, 33))
sketch5.addConstraint(Sketcher.Constraint("Perpendicular", 33, 34))
sketch5.addConstraint(Sketcher.Constraint("Perpendicular", 34, 35))
sketch5.addConstraint(Sketcher.Constraint("Perpendicular", 31, 36))
sketch5.addConstraint(Sketcher.Constraint("Perpendicular", 36, 37))
sketch5.addConstraint(Sketcher.Constraint("Perpendicular", 37, 38))
sketch5.addConstraint(Sketcher.Constraint("Perpendicular", 38, 39))
sketch5.addConstraint(Sketcher.Constraint("Perpendicular", 35, 40))
sketch5.addConstraint(Sketcher.Constraint("Perpendicular", 40, 41))
sketch5.addConstraint(Sketcher.Constraint("Perpendicular", 41, 42))
sketch5.addConstraint(Sketcher.Constraint("Perpendicular", 42, 43))
sketch5.addConstraint(Sketcher.Constraint("Perpendicular", 39, 52))
sketch5.addConstraint(Sketcher.Constraint("Perpendicular", 52, 53))
sketch5.addConstraint(Sketcher.Constraint("Perpendicular", 53, 54))
sketch5.addConstraint(Sketcher.Constraint("Perpendicular", 54, 55))
sketch5.addConstraint(Sketcher.Constraint("Perpendicular", 43, 56))
sketch5.addConstraint(Sketcher.Constraint("Perpendicular", 56, 57))
sketch5.addConstraint(Sketcher.Constraint("Perpendicular", 57, 58))
sketch5.addConstraint(Sketcher.Constraint("Perpendicular", 58, 59))
sketch5.addConstraint(Sketcher.Constraint("Perpendicular", 55, 60))
sketch5.addConstraint(Sketcher.Constraint("Perpendicular", 60, 61))
sketch5.addConstraint(Sketcher.Constraint("Perpendicular", 61, 62))
sketch5.addConstraint(Sketcher.Constraint("Perpendicular", 62, 63))
sketch5.addConstraint(Sketcher.Constraint("Perpendicular", 59, 64))
sketch5.addConstraint(Sketcher.Constraint("Perpendicular", 64, 65))
sketch5.addConstraint(Sketcher.Constraint("Perpendicular", 65, 66))
sketch5.addConstraint(Sketcher.Constraint("Perpendicular", 66, 67))
sketch5.addConstraint(Sketcher.Constraint("Vertical", 4, 2, 8, 2))
sketch5.addConstraint(Sketcher.Constraint("Vertical", 7, 2, 9, 2))
sketch5.addConstraint(Sketcher.Constraint("Vertical", 6, 2, 10, 2))
sketch5.addConstraint(Sketcher.Constraint("Vertical", 8, 2, 12, 2))
sketch5.addConstraint(Sketcher.Constraint("Vertical", 11, 2, 13, 2))
sketch5.addConstraint(Sketcher.Constraint("Vertical", 10, 2, 14, 2))
sketch5.addConstraint(Sketcher.Constraint("Vertical", 12, 2, 16, 2))
sketch5.addConstraint(Sketcher.Constraint("Vertical", 15, 2, 17, 2))
sketch5.addConstraint(Sketcher.Constraint("Vertical", 14, 2, 18, 2))
sketch5.addConstraint(Sketcher.Constraint("Vertical", 3, 2, 20, 2))
sketch5.addConstraint(Sketcher.Constraint("Vertical", 2, 2, 21, 2))
sketch5.addConstraint(Sketcher.Constraint("Vertical", 23, 2, 24, 2))
sketch5.addConstraint(Sketcher.Constraint("Vertical", 22, 2, 25, 2))
sketch5.addConstraint(Sketcher.Constraint("Vertical", 16, 2, 28, 2))
sketch5.addConstraint(Sketcher.Constraint("Vertical", 19, 2, 29, 2))
sketch5.addConstraint(Sketcher.Constraint("Vertical", 18, 2, 30, 2))
sketch5.addConstraint(Sketcher.Constraint("Vertical", 28, 2, 32, 2))
sketch5.addConstraint(Sketcher.Constraint("Vertical", 31, 2, 33, 2))
sketch5.addConstraint(Sketcher.Constraint("Vertical", 30, 2, 34, 2))
sketch5.addConstraint(Sketcher.Constraint("Vertical", 32, 2, 36, 2))
sketch5.addConstraint(Sketcher.Constraint("Vertical", 35, 2, 37, 2))
sketch5.addConstraint(Sketcher.Constraint("Vertical", 34, 2, 38, 2))
sketch5.addConstraint(Sketcher.Constraint("Vertical", 36, 2, 40, 2))
sketch5.addConstraint(Sketcher.Constraint("Vertical", 39, 2, 41, 2))
sketch5.addConstraint(Sketcher.Constraint("Vertical", 38, 2, 42, 2))
sketch5.addConstraint(Sketcher.Constraint("Vertical", 27, 2, 44, 2))
sketch5.addConstraint(Sketcher.Constraint("Vertical", 26, 2, 45, 2))
sketch5.addConstraint(Sketcher.Constraint("Vertical", 47, 2, 48, 2))
sketch5.addConstraint(Sketcher.Constraint("Vertical", 46, 2, 49, 2))
sketch5.addConstraint(Sketcher.Constraint("Vertical", 40, 2, 52, 2))
sketch5.addConstraint(Sketcher.Constraint("Vertical", 43, 2, 53, 2))
sketch5.addConstraint(Sketcher.Constraint("Vertical", 42, 2, 54, 2))
sketch5.addConstraint(Sketcher.Constraint("Vertical", 52, 2, 56, 2))
sketch5.addConstraint(Sketcher.Constraint("Vertical", 55, 2, 57, 2))
sketch5.addConstraint(Sketcher.Constraint("Vertical", 54, 2, 58, 2))
sketch5.addConstraint(Sketcher.Constraint("Vertical", 56, 2, 60, 2))
sketch5.addConstraint(Sketcher.Constraint("Vertical", 59, 2, 61, 2))
sketch5.addConstraint(Sketcher.Constraint("Vertical", 58, 2, 62, 2))
sketch5.addConstraint(Sketcher.Constraint("Vertical", 60, 2, 64, 2))
sketch5.addConstraint(Sketcher.Constraint("Vertical", 63, 2, 65, 2))
sketch5.addConstraint(Sketcher.Constraint("Vertical", 62, 2, 66, 2))
sketch5.addConstraint(Sketcher.Constraint("Vertical", 51, 2, 68, 2))
sketch5.addConstraint(Sketcher.Constraint("Vertical", 50, 2, 69, 2))
sketch5.addConstraint(Sketcher.Constraint("Equal", 2, 20))
sketch5.addConstraint(Sketcher.Constraint("Equal", 22, 24))
sketch5.addConstraint(Sketcher.Constraint("Equal", 26, 44))
sketch5.addConstraint(Sketcher.Constraint("Equal", 46, 48))
sketch5.addConstraint(Sketcher.Constraint("Equal", 50, 68))
sketch5.addConstraint(Sketcher.Constraint("Equal", 7, 8))
sketch5.addConstraint(Sketcher.Constraint("DistanceX", 1, 1, 1, 2, Q("5 mm")))
sketch5.addConstraint(Sketcher.Constraint("DistanceY", 0, 2, 0, 1, Q("10 mm")))
sketch5.addConstraint(Sketcher.Constraint("Distance", 4, Q("10 mm")))
sketch5.addConstraint(Sketcher.Constraint("Distance", 5, Q("5 mm")))
sketch5.addConstraint(Sketcher.Constraint("DistanceX", 0, 2, -1, 1, Q("0.5 mm")))
sketch5.addConstraint(Sketcher.Constraint("DistanceY", -1, 1, 0, 2, Q("184.5 mm")))
sketch5.addConstraint(Sketcher.Constraint("DistanceY", -1, 1, 20, 2, Q("113.5 mm")))
sketch5.addConstraint(Sketcher.Constraint("DistanceY", -1, 1, 24, 2, Q("42.5 mm")))
sketch5.addConstraint(Sketcher.Constraint("DistanceY", -1, 1, 44, 2, Q("397.5 mm")))
sketch5.addConstraint(Sketcher.Constraint("DistanceY", -1, 1, 48, 2, Q("326.5 mm")))
sketch5.addConstraint(Sketcher.Constraint("DistanceY", -1, 1, 68, 2, Q("255.5 mm")))
sketch5.addConstraint(Sketcher.Constraint("DistanceY", -1, 1, 7, 2, Q("207.886101 mm")))
sketch5.addConstraint(Sketcher.Constraint("DistanceY", -1, 1, 9, 2, Q("171.113899 mm")))
sketch5.addConstraint(Sketcher.Constraint("DistanceY", -1, 1, 15, 2, Q("136.886101 mm")))
sketch5.addConstraint(Sketcher.Constraint("DistanceY", -1, 1, 17, 2, Q("100.113899 mm")))
sketch5.addConstraint(Sketcher.Constraint("DistanceY", -1, 1, 31, 2, Q("65.886101 mm")))
sketch5.addConstraint(Sketcher.Constraint("DistanceY", -1, 1, 33, 2, Q("29.113899 mm")))
sketch5.addConstraint(Sketcher.Constraint("DistanceY", -1, 1, 39, 2, Q("420.886101 mm")))
sketch5.addConstraint(Sketcher.Constraint("DistanceY", -1, 1, 41, 2, Q("384.113899 mm")))
sketch5.addConstraint(Sketcher.Constraint("DistanceY", -1, 1, 55, 2, Q("349.886101 mm")))
sketch5.addConstraint(Sketcher.Constraint("DistanceY", -1, 1, 57, 2, Q("313.113899 mm")))
sketch5.addConstraint(Sketcher.Constraint("DistanceY", -1, 1, 63, 2, Q("278.886101 mm")))
sketch5.addConstraint(Sketcher.Constraint("DistanceY", -1, 1, 65, 2, Q("242.113899 mm")))
sketch5.addConstraint(Sketcher.Constraint("DistanceX", -1, 1, 4, 2, Q("28.483478 mm")))
sketch5.addConstraint(Sketcher.Constraint("DistanceY", -1, 1, 4, 2, Q("209.15242 mm")))
pocket3 = body.newObject("PartDesign::Pocket", "Pocket002")
pocket3.Profile = sketch5
pocket3.Length = 10
doc.recompute()

fillet = body.newObject("PartDesign::Fillet", "Fillet")
fillet.Base = (pocket3, edges_at(pocket3, [(-10, 0, 7.5), (-10, 450, 7.5)]))
fillet.Radius = 10
doc.recompute()

fillet2 = body.newObject("PartDesign::Fillet", "Fillet001")
fillet2.Base = (fillet, edges_at(fillet, [
    (-0.5, 184.5, 10),
    (-0.5, 194.5, 10),
    (4.5, 194.5, 10),
    (4.5, 184.5, 10),
    (27.85, 22.888, 10),
    (17.931, 24.154, 10),
    (18.564, 29.114, 10),
    (28.483, 27.848, 10),
    (-0.5, 42.5, 10),
    (-0.5, 52.5, 10),
    (4.5, 52.5, 10),
    (4.5, 42.5, 10),
    (18.564, 65.886, 10),
    (17.931, 70.846, 10),
    (27.85, 72.112, 10),
    (28.483, 67.152, 10),
    (4.5, 113.5, 10),
    (-0.5, 113.5, 10),
    (-0.5, 123.5, 10),
    (4.5, 123.5, 10),
    (18.564, 136.886, 10),
    (17.931, 141.846, 10),
    (27.85, 143.112, 10),
    (28.483, 138.152, 10),
    (18.564, 100.114, 10),
    (28.483, 98.848, 10),
    (27.85, 93.888, 10),
    (17.931, 95.154, 10),
    (27.85, 164.888, 10),
    (17.931, 166.154, 10),
    (18.564, 171.114, 10),
    (28.483, 169.848, 10),
    (18.564, 207.886, 10),
    (17.931, 212.846, 10),
    (27.85, 214.112, 10),
    (28.483, 209.152, 10),
    (4.5, 255.5, 10),
    (-0.5, 255.5, 10),
    (-0.5, 265.5, 10),
    (4.5, 265.5, 10),
    (18.564, 278.886, 10),
    (17.931, 283.846, 10),
    (27.85, 285.112, 10),
    (28.483, 280.152, 10),
    (27.85, 306.888, 10),
    (17.931, 308.154, 10),
    (18.564, 313.114, 10),
    (28.483, 311.848, 10),
    (-0.5, 326.5, 10),
    (-0.5, 336.5, 10),
    (4.5, 336.5, 10),
    (4.5, 326.5, 10),
    (4.5, 397.5, 10),
    (-0.5, 397.5, 10),
    (-0.5, 407.5, 10),
    (4.5, 407.5, 10),
    (18.564, 384.114, 10),
    (28.483, 382.848, 10),
    (27.85, 377.888, 10),
    (17.931, 379.154, 10),
    (18.564, 349.886, 10),
    (17.931, 354.846, 10),
    (27.85, 356.112, 10),
    (28.483, 351.152, 10),
    (18.564, 242.114, 10),
    (28.483, 240.848, 10),
    (27.85, 235.888, 10),
    (17.931, 237.154, 10),
    (18.564, 420.886, 10),
    (17.931, 425.846, 10),
    (27.85, 427.112, 10),
    (28.483, 422.152, 10),
]))
fillet2.Radius = 1.5

# Sketch on XY plane
sketch6 = body.newObject("Sketcher::SketchObject", "Sketch005")
sketch6.AttachmentSupport = (doc.getObject("XY_Plane"), [""])
sketch6.MapMode = "FlatFace"
sketch6.AttachmentOffset = App.Placement(V(0, 0, 15), App.Rotation())
sketch6.addGeometry(Part.LineSegment(V(47, 209.5, 0), V(59.2, 211.1, 0)), False)
sketch6.addGeometry(Part.LineSegment(V(59.2, 211.1, 0), V(59.2, 238.9, 0)), False)
sketch6.addGeometry(Part.LineSegment(V(59.2, 238.9, 0), V(47, 240.5, 0)), False)
sketch6.addGeometry(Part.LineSegment(V(47, 240.5, 0), V(47, 209.5, 0)), False)
sketch6.addGeometry(Part.LineSegment(V(47, 138.5, 0), V(59.2, 140.1, 0)), False)
sketch6.addGeometry(Part.LineSegment(V(59.2, 140.1, 0), V(59.2, 167.9, 0)), False)
sketch6.addGeometry(Part.LineSegment(V(59.2, 167.9, 0), V(47, 169.5, 0)), False)
sketch6.addGeometry(Part.LineSegment(V(47, 169.5, 0), V(47, 138.5, 0)), False)
sketch6.addGeometry(Part.LineSegment(V(47, 67.5, 0), V(59.2, 69.1, 0)), False)
sketch6.addGeometry(Part.LineSegment(V(59.2, 69.1, 0), V(59.2, 96.9, 0)), False)
sketch6.addGeometry(Part.LineSegment(V(59.2, 96.9, 0), V(47, 98.5, 0)), False)
sketch6.addGeometry(Part.LineSegment(V(47, 98.5, 0), V(47, 67.5, 0)), False)
sketch6.addGeometry(Part.LineSegment(V(47, 422.5, 0), V(49.2, 422.8, 0)), False)
sketch6.addGeometry(Part.LineSegment(V(49.2, 422.8, 0), V(49.2, 450, 0)), False)
sketch6.addGeometry(Part.LineSegment(V(49.2, 450, 0), V(47, 450, 0)), False)
sketch6.addGeometry(Part.LineSegment(V(47, 450, 0), V(47, 422.5, 0)), False)
sketch6.addGeometry(Part.LineSegment(V(47, 280.5, 0), V(59.2, 282.1, 0)), False)
sketch6.addGeometry(Part.LineSegment(V(59.2, 282.1, 0), V(59.2, 309.9, 0)), False)
sketch6.addGeometry(Part.LineSegment(V(59.2, 309.9, 0), V(47, 311.5, 0)), False)
sketch6.addGeometry(Part.LineSegment(V(47, 311.5, 0), V(47, 280.5, 0)), False)
sketch6.addGeometry(Part.LineSegment(V(47, 351.5, 0), V(59.2, 353.1, 0)), False)
sketch6.addGeometry(Part.LineSegment(V(59.2, 353.1, 0), V(59.2, 380.9, 0)), False)
sketch6.addGeometry(Part.LineSegment(V(59.2, 380.9, 0), V(47, 382.5, 0)), False)
sketch6.addGeometry(Part.LineSegment(V(47, 382.5, 0), V(47, 351.5, 0)), False)
sketch6.addGeometry(Part.LineSegment(V(47, 0, 0), V(49.2, 0, 0)), False)
sketch6.addGeometry(Part.LineSegment(V(49.2, 0, 0), V(49.2, 27.2, 0)), False)
sketch6.addGeometry(Part.LineSegment(V(49.2, 27.2, 0), V(47, 27.5, 0)), False)
sketch6.addGeometry(Part.LineSegment(V(47, 27.5, 0), V(47, 0, 0)), False)
sketch6.addConstraint(Sketcher.Constraint("Coincident", 0, 2, 1, 1))
sketch6.addConstraint(Sketcher.Constraint("Coincident", 1, 2, 2, 1))
sketch6.addConstraint(Sketcher.Constraint("Coincident", 2, 2, 3, 1))
sketch6.addConstraint(Sketcher.Constraint("Coincident", 3, 2, 0, 1))
sketch6.addConstraint(Sketcher.Constraint("Coincident", 4, 2, 5, 1))
sketch6.addConstraint(Sketcher.Constraint("Coincident", 5, 2, 6, 1))
sketch6.addConstraint(Sketcher.Constraint("Coincident", 6, 2, 7, 1))
sketch6.addConstraint(Sketcher.Constraint("Coincident", 7, 2, 4, 1))
sketch6.addConstraint(Sketcher.Constraint("Coincident", 8, 2, 9, 1))
sketch6.addConstraint(Sketcher.Constraint("Coincident", 9, 2, 10, 1))
sketch6.addConstraint(Sketcher.Constraint("Coincident", 10, 2, 11, 1))
sketch6.addConstraint(Sketcher.Constraint("Coincident", 11, 2, 8, 1))
sketch6.addConstraint(Sketcher.Constraint("Coincident", 12, 2, 13, 1))
sketch6.addConstraint(Sketcher.Constraint("Coincident", 13, 2, 14, 1))
sketch6.addConstraint(Sketcher.Constraint("Coincident", 14, 2, 15, 1))
sketch6.addConstraint(Sketcher.Constraint("Coincident", 15, 2, 12, 1))
sketch6.addConstraint(Sketcher.Constraint("Coincident", 16, 2, 17, 1))
sketch6.addConstraint(Sketcher.Constraint("Coincident", 17, 2, 18, 1))
sketch6.addConstraint(Sketcher.Constraint("Coincident", 18, 2, 19, 1))
sketch6.addConstraint(Sketcher.Constraint("Coincident", 19, 2, 16, 1))
sketch6.addConstraint(Sketcher.Constraint("Coincident", 20, 2, 21, 1))
sketch6.addConstraint(Sketcher.Constraint("Coincident", 21, 2, 22, 1))
sketch6.addConstraint(Sketcher.Constraint("Coincident", 22, 2, 23, 1))
sketch6.addConstraint(Sketcher.Constraint("Coincident", 23, 2, 20, 1))
sketch6.addConstraint(Sketcher.Constraint("Coincident", 24, 2, 25, 1))
sketch6.addConstraint(Sketcher.Constraint("Coincident", 25, 2, 26, 1))
sketch6.addConstraint(Sketcher.Constraint("Coincident", 26, 2, 27, 1))
sketch6.addConstraint(Sketcher.Constraint("Coincident", 27, 2, 24, 1))
sketch6.addConstraint(Sketcher.Constraint("Vertical", 1))
sketch6.addConstraint(Sketcher.Constraint("Vertical", 3))
sketch6.addConstraint(Sketcher.Constraint("Vertical", 5))
sketch6.addConstraint(Sketcher.Constraint("Vertical", 7))
sketch6.addConstraint(Sketcher.Constraint("Vertical", 9))
sketch6.addConstraint(Sketcher.Constraint("Vertical", 11))
sketch6.addConstraint(Sketcher.Constraint("Vertical", 13))
sketch6.addConstraint(Sketcher.Constraint("Horizontal", 14))
sketch6.addConstraint(Sketcher.Constraint("Vertical", 15))
sketch6.addConstraint(Sketcher.Constraint("Vertical", 17))
sketch6.addConstraint(Sketcher.Constraint("Vertical", 19))
sketch6.addConstraint(Sketcher.Constraint("Vertical", 21))
sketch6.addConstraint(Sketcher.Constraint("Vertical", 23))
sketch6.addConstraint(Sketcher.Constraint("Horizontal", 24))
sketch6.addConstraint(Sketcher.Constraint("Vertical", 25))
sketch6.addConstraint(Sketcher.Constraint("Vertical", 27))
sketch6.addConstraint(Sketcher.Constraint("PointOnObject", 24, 2, -1))
sketch6.addConstraint(Sketcher.Constraint("Parallel", 0, 4))
sketch6.addConstraint(Sketcher.Constraint("Parallel", 2, 6))
sketch6.addConstraint(Sketcher.Constraint("Parallel", 4, 8))
sketch6.addConstraint(Sketcher.Constraint("Parallel", 6, 10))
sketch6.addConstraint(Sketcher.Constraint("Parallel", 8, 12))
sketch6.addConstraint(Sketcher.Constraint("Parallel", 12, 16))
sketch6.addConstraint(Sketcher.Constraint("Parallel", 10, 18))
sketch6.addConstraint(Sketcher.Constraint("Parallel", 16, 20))
sketch6.addConstraint(Sketcher.Constraint("Parallel", 18, 22))
sketch6.addConstraint(Sketcher.Constraint("Parallel", 22, 26))
sketch6.addConstraint(Sketcher.Constraint("Vertical", 1, 2, 4, 2))
sketch6.addConstraint(Sketcher.Constraint("Vertical", 3, 2, 6, 2))
sketch6.addConstraint(Sketcher.Constraint("Vertical", 5, 2, 8, 2))
sketch6.addConstraint(Sketcher.Constraint("Vertical", 7, 2, 10, 2))
sketch6.addConstraint(Sketcher.Constraint("Vertical", 11, 2, 14, 2))
sketch6.addConstraint(Sketcher.Constraint("Vertical", 9, 2, 16, 2))
sketch6.addConstraint(Sketcher.Constraint("Vertical", 15, 2, 18, 2))
sketch6.addConstraint(Sketcher.Constraint("Vertical", 17, 2, 20, 2))
sketch6.addConstraint(Sketcher.Constraint("Vertical", 19, 2, 22, 2))
sketch6.addConstraint(Sketcher.Constraint("Vertical", 13, 2, 24, 2))
sketch6.addConstraint(Sketcher.Constraint("Vertical", 23, 2, 26, 2))
sketch6.addConstraint(Sketcher.Constraint("Equal", 1, 5))
sketch6.addConstraint(Sketcher.Constraint("Equal", 5, 9))
sketch6.addConstraint(Sketcher.Constraint("Equal", 9, 17))
sketch6.addConstraint(Sketcher.Constraint("Equal", 17, 21))
sketch6.addConstraint(Sketcher.Constraint("Equal", 13, 25))
sketch6.addConstraint(Sketcher.Constraint("Equal", 15, 27))
sketch6.addConstraint(Sketcher.Constraint("DistanceY", 3, 2, 3, 1, Q("31 mm")))
sketch6.addConstraint(Sketcher.Constraint("DistanceY", 15, 2, 15, 1, Q("27.5 mm")))
sketch6.addConstraint(Sketcher.Constraint("DistanceX", -1, 1, 2, 2, Q("47 mm")))
sketch6.addConstraint(Sketcher.Constraint("DistanceY", -1, 1, 13, 2, Q("450 mm")))
sketch6.addConstraint(Sketcher.Constraint("DistanceY", 4, 2, 0, 2, Q("71 mm")))
sketch6.addConstraint(Sketcher.Constraint("DistanceY", 8, 2, 4, 2, Q("71 mm")))
sketch6.addConstraint(Sketcher.Constraint("DistanceX", 12, 2, 1, 2, Q("10 mm")))
sketch6.addConstraint(Sketcher.Constraint("DistanceY", 2, 2, 15, 2, Q("182 mm")))
sketch6.addConstraint(Sketcher.Constraint("DistanceY", 0, 2, 16, 2, Q("71 mm")))
sketch6.addConstraint(Sketcher.Constraint("DistanceY", 16, 2, 20, 2, Q("71 mm")))
sketch6.addConstraint(Sketcher.Constraint("DistanceX", 14, 2, 14, 1, Q("2.25 mm")))
sketch6.addConstraint(Sketcher.Constraint("DistanceY", 1, 1, 1, 2, Q("27.87234 mm")))
pad3 = body.newObject("PartDesign::Pad", "Pad002")
pad3.Profile = sketch6
pad3.Length = 15
pad3.Reversed = True
doc.recompute()

fillet3 = body.newObject("PartDesign::Fillet", "Fillet002")
fillet3.Base = (pad3, edges_at(pad3, [
    (59.25, 238.936, 7.5),
    (59.25, 211.064, 7.5),
    (59.25, 167.936, 7.5),
    (59.25, 140.064, 7.5),
    (59.25, 96.936, 7.5),
    (59.25, 69.064, 7.5),
    (59.25, 309.936, 7.5),
    (59.25, 282.064, 7.5),
    (59.25, 380.936, 7.5),
    (59.25, 353.064, 7.5),
]))
fillet3.Radius = 5

doc.recompute()
